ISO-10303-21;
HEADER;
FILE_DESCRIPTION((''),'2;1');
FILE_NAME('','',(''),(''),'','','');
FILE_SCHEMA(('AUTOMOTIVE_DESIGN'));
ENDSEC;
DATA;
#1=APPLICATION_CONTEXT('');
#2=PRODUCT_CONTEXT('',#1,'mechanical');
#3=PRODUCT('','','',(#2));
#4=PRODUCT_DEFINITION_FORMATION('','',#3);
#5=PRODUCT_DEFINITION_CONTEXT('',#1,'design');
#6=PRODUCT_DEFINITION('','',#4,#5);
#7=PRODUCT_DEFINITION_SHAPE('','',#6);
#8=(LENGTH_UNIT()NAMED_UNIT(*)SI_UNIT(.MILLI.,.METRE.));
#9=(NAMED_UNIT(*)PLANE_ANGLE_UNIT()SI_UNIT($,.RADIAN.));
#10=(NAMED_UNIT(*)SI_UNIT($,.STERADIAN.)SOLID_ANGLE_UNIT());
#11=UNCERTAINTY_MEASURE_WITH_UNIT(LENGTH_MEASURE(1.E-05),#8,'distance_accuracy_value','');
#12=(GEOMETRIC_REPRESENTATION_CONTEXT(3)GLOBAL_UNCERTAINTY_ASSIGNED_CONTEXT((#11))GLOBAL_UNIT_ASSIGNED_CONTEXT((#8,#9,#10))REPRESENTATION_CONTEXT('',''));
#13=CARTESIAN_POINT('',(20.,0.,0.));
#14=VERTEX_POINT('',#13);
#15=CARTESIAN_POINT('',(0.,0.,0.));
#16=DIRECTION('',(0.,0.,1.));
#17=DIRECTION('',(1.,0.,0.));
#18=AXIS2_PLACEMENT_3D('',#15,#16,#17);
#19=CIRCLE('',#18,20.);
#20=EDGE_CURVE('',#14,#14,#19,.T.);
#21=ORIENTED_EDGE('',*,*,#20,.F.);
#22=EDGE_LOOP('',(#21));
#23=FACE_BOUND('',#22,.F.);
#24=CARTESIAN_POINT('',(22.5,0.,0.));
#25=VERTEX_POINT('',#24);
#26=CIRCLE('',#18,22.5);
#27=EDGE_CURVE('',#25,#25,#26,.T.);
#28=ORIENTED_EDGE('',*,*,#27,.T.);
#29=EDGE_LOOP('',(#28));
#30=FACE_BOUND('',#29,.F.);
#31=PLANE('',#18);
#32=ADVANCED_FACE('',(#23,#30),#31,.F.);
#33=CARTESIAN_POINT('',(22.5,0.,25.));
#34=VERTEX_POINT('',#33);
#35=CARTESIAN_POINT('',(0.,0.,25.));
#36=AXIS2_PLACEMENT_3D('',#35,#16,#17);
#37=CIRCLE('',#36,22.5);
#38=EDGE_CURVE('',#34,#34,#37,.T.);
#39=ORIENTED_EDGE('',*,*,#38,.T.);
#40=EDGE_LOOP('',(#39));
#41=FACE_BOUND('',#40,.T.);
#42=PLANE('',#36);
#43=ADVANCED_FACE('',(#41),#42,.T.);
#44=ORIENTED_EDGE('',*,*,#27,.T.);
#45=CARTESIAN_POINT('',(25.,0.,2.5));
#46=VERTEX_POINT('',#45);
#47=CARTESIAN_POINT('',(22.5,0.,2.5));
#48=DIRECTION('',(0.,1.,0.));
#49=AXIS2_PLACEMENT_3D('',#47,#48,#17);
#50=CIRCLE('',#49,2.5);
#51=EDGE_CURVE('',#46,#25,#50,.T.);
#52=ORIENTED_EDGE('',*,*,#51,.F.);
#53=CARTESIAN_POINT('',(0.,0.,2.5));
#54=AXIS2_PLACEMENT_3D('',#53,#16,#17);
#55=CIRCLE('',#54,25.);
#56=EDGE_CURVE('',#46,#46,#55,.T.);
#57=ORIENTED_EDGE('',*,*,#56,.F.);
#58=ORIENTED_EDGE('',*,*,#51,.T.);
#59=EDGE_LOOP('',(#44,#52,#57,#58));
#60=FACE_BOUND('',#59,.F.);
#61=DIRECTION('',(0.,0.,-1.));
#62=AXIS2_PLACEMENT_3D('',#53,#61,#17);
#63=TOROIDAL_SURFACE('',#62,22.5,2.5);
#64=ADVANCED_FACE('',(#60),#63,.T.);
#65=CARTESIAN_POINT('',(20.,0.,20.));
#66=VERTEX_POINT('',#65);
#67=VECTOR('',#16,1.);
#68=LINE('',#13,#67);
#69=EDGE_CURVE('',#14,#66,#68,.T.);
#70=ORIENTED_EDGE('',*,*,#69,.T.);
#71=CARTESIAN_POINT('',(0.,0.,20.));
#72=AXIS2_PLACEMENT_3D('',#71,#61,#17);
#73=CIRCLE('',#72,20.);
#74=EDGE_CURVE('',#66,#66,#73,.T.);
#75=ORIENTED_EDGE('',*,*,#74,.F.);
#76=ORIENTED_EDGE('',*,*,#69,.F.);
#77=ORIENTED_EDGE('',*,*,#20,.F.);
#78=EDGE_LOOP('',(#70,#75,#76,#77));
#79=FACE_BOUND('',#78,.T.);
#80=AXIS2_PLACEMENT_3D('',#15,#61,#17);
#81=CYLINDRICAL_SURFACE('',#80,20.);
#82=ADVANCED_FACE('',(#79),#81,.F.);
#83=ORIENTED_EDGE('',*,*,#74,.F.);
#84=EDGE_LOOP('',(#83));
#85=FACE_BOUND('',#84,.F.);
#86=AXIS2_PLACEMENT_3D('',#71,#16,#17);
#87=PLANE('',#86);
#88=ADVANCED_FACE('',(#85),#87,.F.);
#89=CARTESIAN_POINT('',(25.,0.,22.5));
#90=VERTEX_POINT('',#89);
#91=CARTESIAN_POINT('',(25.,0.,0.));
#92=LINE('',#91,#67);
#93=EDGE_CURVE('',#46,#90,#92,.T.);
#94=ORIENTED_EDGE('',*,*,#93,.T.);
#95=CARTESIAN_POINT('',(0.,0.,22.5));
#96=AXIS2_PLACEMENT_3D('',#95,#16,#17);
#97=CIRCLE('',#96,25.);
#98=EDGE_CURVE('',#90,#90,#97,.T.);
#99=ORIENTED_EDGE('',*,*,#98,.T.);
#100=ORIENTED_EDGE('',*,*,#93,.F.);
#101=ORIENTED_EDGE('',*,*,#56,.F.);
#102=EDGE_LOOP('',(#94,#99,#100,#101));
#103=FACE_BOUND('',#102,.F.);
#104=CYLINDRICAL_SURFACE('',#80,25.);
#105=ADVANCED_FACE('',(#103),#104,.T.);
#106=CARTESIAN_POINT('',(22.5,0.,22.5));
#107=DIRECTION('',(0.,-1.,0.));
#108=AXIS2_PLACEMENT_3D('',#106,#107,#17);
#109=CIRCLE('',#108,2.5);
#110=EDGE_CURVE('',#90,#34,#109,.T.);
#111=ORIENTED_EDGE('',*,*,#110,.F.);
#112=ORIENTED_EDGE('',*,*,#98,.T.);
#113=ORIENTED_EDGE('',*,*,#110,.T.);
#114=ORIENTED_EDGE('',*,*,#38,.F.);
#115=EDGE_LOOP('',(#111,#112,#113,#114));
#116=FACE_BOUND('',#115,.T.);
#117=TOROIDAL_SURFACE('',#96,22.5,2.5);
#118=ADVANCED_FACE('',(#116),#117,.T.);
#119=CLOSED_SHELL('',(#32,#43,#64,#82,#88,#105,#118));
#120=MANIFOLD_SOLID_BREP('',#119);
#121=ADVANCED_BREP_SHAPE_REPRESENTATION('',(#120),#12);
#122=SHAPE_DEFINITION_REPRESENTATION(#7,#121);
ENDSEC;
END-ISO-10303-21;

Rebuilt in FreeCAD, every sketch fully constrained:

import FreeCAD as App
import Part
import Sketcher


def edges_at(feature, points):
    """Names of the edges that pass closest to the given points."""
    edges = feature.Shape.Edges
    near = lambda p: min(range(len(edges)), key=lambda i: edges[i].distToShape(Part.Vertex(*p))[0])
    return sorted({f"Edge{near(p) + 1}" for p in points})


def faces_at(feature, points):
    """Names of the faces that lie closest to the given points."""
    faces = feature.Shape.Faces
    near = lambda p: min(range(len(faces)), key=lambda i: faces[i].distToShape(Part.Vertex(*p))[0])
    return sorted({f"Face{near(p) + 1}" for p in points})

doc = App.newDocument("Part")
body = doc.addObject("PartDesign::Body", "Body")

sketch1 = body.newObject("Sketcher::SketchObject", "Sketch")
sketch1.AttachmentSupport = (doc.getObject("XY_Plane"), [""])
sketch1.MapMode = "FlatFace"
sketch1.addGeometry(Part.Circle(App.Vector(0, 0, 0), App.Vector(0, 0, 1), 25), False)
sketch1.addConstraint([
    Sketcher.Constraint("Coincident", 0, 3, -1, 1),
    Sketcher.Constraint("Diameter", 0, 50.0),
])
pad1 = body.newObject("PartDesign::Pad", "Pad")
pad1.Profile = sketch1
pad1.Length = 25
doc.recompute()

thickness = body.newObject("PartDesign::Thickness", "Thickness")
thickness.Base = (pad1, faces_at(pad1, [(0, 0, 0)]))
thickness.Value = 5
thickness.Reversed = True
thickness.Join = "Arc"
doc.recompute()

fillet = body.newObject("PartDesign::Fillet", "Fillet")
fillet.Base = (thickness, edges_at(thickness, [(-25, 0, 25)]))
fillet.Radius = 2.5
doc.recompute()

fillet2 = body.newObject("PartDesign::Fillet", "Fillet001")
fillet2.Base = (fillet, edges_at(fillet, [(-25, 0, 0)]))
fillet2.Radius = 2.5

doc.recompute()
